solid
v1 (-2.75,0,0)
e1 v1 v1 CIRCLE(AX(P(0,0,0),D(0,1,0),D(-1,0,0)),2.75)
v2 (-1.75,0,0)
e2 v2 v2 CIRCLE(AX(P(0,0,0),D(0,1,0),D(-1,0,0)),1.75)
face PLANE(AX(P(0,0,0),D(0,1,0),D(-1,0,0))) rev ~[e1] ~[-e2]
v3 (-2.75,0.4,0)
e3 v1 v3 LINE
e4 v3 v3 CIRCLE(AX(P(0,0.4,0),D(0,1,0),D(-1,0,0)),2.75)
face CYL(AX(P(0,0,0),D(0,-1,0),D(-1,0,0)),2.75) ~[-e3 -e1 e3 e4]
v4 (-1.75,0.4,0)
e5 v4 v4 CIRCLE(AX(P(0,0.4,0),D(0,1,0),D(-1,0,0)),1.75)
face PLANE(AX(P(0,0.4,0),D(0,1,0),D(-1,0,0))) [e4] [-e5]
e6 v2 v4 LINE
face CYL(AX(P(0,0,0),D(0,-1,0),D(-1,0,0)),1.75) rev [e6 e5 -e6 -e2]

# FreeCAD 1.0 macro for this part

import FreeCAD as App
import Part
import Sketcher
from FreeCAD import Vector
Q = App.Units.Quantity

doc = App.newDocument("Part")
params = doc.addObject("Spreadsheet::Sheet", "Params")
for row, (alias, value) in enumerate([
    ("sketch1_diameter", "3.5 mm"),
    ("sketch1_diameter2", "5.5 mm"),
    ("pad1_length", "0.4 mm"),
], start=1):
    params.set(f"A{row}", alias)
    params.set(f"B{row}", "=" + value)
    params.setAlias(f"B{row}", alias)

body = doc.addObject("PartDesign::Body", "Body")

# Sketch on XZ plane
sketch1 = body.newObject("Sketcher::SketchObject", "Sketch")
sketch1.AttachmentSupport = (doc.getObject("XZ_Plane"), [""])
sketch1.MapMode = "FlatFace"
sketch1.addGeometry([
    Part.Circle(Vector(0, 0, 0), Vector(0, 0, 1), 2.75),
    Part.Circle(Vector(0, 0, 0), Vector(0, 0, 1), 1.75),
], False)
sketch1.addConstraint([
    Sketcher.Constraint("Coincident", 0, 3, -1, 1),
    Sketcher.Constraint("Coincident", 1, 3, -1, 1),
    Sketcher.Constraint("Diameter", 1, Q("3.5 mm")),
    Sketcher.Constraint("Diameter", 0, Q("5.5 mm")),
])
sketch1.setExpression("Constraints[2]", "Params.sketch1_diameter")
sketch1.setExpression("Constraints[3]", "Params.sketch1_diameter2")
pad1 = body.newObject("PartDesign::Pad", "Pad")
pad1.Profile = sketch1
pad1.setExpression("Length", "Params.pad1_length")
pad1.Reversed = True

doc.recompute()
